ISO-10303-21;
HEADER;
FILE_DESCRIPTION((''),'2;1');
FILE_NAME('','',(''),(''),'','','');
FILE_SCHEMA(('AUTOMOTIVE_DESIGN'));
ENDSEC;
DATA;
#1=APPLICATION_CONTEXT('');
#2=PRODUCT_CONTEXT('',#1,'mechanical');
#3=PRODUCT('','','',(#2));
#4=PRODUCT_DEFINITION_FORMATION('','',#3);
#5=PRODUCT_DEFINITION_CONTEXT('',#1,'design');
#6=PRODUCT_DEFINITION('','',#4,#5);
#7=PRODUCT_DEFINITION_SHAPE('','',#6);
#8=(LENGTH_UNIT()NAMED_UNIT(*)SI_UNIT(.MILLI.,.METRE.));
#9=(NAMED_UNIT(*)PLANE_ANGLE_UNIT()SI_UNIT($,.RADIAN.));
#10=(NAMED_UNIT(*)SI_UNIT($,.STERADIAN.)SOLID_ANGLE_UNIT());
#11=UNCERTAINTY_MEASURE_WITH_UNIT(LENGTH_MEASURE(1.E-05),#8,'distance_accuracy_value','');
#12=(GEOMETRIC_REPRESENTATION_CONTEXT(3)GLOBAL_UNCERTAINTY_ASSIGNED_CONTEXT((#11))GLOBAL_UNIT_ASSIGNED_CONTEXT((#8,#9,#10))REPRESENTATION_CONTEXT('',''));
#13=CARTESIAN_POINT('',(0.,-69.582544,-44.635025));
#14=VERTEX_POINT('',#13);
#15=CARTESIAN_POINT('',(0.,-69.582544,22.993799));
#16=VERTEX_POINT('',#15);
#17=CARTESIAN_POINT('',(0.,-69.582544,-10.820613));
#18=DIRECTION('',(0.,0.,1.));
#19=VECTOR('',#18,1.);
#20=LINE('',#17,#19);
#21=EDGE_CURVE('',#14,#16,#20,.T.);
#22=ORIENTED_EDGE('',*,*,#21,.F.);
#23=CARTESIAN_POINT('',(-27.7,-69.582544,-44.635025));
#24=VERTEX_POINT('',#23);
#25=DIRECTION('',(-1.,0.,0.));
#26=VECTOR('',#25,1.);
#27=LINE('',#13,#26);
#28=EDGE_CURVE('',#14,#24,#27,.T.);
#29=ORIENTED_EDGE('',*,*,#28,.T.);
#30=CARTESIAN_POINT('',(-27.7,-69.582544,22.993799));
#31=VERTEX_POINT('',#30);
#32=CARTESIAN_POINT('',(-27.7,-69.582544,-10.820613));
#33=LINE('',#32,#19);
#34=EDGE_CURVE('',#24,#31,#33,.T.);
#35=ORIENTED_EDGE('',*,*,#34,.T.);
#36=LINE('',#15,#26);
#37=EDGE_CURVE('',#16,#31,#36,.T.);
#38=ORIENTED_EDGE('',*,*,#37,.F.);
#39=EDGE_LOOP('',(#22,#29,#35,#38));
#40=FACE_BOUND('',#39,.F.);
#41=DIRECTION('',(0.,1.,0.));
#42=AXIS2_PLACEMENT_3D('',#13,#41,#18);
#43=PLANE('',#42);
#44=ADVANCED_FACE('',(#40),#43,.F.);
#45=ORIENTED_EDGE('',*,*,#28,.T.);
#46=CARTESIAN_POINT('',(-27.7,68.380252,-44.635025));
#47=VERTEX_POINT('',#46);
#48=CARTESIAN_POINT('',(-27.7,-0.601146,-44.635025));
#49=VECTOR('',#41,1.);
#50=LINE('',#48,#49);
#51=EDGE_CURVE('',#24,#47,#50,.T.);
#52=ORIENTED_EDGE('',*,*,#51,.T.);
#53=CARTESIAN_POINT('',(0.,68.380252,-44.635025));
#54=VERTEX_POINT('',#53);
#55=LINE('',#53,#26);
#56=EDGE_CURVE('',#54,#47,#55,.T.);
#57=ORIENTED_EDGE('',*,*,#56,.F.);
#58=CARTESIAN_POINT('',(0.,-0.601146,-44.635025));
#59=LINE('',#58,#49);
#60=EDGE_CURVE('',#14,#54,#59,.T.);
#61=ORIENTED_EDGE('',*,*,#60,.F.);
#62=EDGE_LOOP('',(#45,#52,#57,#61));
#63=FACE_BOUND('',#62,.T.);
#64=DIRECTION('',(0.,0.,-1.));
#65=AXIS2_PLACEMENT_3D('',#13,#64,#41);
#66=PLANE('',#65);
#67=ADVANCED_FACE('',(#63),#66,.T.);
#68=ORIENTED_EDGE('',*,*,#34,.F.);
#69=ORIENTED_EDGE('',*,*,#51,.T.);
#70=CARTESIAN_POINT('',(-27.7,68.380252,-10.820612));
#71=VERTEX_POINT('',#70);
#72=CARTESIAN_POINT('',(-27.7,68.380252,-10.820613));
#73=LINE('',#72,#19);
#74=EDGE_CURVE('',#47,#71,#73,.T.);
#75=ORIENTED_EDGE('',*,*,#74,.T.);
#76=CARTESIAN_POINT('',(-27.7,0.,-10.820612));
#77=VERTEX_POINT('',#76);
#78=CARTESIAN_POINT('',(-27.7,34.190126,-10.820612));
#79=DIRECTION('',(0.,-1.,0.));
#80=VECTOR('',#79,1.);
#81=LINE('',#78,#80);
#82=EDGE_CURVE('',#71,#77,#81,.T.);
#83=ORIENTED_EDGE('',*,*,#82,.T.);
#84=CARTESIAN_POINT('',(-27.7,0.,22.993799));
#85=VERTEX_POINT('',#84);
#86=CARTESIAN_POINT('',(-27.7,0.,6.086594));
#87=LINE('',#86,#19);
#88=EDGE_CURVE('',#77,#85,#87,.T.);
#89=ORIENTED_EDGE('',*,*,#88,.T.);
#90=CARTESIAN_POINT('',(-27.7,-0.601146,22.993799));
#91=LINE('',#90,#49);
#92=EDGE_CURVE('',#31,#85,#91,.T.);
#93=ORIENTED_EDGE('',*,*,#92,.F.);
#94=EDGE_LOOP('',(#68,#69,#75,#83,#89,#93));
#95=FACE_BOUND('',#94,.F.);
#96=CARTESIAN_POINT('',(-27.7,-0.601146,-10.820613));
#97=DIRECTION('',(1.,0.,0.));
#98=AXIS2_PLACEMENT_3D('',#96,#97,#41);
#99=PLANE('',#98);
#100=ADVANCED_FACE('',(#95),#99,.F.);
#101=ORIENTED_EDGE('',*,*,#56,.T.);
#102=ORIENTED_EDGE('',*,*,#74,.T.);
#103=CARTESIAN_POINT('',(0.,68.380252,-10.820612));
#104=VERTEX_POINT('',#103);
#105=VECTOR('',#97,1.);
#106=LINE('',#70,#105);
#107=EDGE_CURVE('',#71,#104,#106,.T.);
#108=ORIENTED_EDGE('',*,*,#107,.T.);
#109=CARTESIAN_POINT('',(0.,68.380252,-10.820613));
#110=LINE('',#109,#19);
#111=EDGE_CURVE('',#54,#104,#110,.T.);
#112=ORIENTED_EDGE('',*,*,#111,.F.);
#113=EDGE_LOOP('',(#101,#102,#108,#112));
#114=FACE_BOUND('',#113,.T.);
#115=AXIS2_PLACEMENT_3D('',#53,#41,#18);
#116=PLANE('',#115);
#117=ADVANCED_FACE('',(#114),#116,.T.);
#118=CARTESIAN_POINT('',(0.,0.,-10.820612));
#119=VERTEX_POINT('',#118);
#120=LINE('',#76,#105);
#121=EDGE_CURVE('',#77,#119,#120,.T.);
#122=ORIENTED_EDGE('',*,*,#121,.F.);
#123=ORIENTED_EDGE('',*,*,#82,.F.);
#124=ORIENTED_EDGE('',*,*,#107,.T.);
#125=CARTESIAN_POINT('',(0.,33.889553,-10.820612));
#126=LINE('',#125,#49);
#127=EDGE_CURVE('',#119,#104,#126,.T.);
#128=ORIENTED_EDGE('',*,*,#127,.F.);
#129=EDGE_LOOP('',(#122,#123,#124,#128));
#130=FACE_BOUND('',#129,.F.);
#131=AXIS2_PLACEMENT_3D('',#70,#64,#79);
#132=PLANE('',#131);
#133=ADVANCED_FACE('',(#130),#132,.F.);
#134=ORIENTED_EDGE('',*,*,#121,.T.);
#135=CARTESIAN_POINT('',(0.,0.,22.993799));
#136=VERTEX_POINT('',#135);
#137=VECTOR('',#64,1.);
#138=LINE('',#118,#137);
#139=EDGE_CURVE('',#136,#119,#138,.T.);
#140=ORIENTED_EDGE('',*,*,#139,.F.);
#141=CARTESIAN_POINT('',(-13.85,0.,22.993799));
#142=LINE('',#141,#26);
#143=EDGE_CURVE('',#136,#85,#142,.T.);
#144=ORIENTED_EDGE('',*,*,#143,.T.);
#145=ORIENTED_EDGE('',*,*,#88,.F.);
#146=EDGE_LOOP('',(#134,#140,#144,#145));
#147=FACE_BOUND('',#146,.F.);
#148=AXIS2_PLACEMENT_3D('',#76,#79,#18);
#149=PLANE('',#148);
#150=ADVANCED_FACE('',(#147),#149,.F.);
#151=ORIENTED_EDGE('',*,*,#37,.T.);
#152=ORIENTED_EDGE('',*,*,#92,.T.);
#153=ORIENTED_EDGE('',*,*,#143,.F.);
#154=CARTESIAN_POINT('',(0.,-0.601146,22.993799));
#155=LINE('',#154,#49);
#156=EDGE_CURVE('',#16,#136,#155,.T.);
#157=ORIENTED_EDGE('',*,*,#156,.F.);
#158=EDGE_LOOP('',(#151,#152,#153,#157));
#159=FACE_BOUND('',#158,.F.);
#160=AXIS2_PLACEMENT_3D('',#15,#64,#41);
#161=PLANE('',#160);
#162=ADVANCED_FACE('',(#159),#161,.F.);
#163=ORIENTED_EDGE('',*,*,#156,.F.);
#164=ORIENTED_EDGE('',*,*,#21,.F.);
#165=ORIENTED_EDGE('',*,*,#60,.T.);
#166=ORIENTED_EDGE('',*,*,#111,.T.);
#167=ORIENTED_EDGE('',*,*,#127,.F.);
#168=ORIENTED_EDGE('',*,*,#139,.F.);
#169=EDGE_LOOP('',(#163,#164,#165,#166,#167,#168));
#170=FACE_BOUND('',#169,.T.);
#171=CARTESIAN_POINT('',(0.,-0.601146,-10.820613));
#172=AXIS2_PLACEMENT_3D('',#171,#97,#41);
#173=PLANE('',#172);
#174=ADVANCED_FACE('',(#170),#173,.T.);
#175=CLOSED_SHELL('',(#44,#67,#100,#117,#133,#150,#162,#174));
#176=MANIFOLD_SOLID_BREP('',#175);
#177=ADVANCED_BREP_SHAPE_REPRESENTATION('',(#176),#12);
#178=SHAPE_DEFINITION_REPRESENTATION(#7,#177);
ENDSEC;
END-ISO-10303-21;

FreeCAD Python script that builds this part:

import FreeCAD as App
import Part
import Sketcher
from FreeCAD import Vector


def add_polygon(sketch, points):
    """Adds a closed chain of lines whose ends are joined by coincident constraints."""
    first, n = sketch.GeometryCount, len(points)
    for a, b in zip(points, points[1:] + points[:1]):
        sketch.addGeometry(Part.LineSegment(App.Vector(*a, 0), App.Vector(*b, 0)), False)
    for i in range(n):
        sketch.addConstraint(Sketcher.Constraint("Coincident", first + i, 2, first + (i + 1) % n, 1))

doc = App.newDocument("Part")
params = doc.addObject("Spreadsheet::Sheet", "Params")
for row, (alias, value) in enumerate([
    ("pad1_length", "27.7 mm"),
    ("pocket1_length", "36.4 mm"),
], start=1):
    params.set(f"A{row}", alias)
    params.set(f"B{row}", "=" + value)
    params.setAlias(f"B{row}", alias)

body = doc.addObject("PartDesign::Body", "Body")

sketch1 = body.newObject("Sketcher::SketchObject", "Sketch")
sketch1.AttachmentSupport = (doc.getObject("YZ_Plane"), [""])
sketch1.MapMode = "FlatFace"
add_polygon(sketch1, [(-70, 23), (-70, -45), (68, -45), (68, 23)])
sketch1.addConstraint([
    Sketcher.Constraint("Vertical", 0),
    Sketcher.Constraint("Horizontal", 1),
    Sketcher.Constraint("Vertical", 2),
    Sketcher.Constraint("Horizontal", 3),
    Sketcher.Constraint("DistanceY", -1, 1, 2, 2, 22.993799),
    Sketcher.Constraint("DistanceX", 1, 1, 1, 2, 137.962796),
    Sketcher.Constraint("DistanceY", 0, 2, 0, 1, 67.628823),
    Sketcher.Constraint("DistanceX", -1, 1, 1, 2, 68.380252),
])
pad1 = body.newObject("PartDesign::Pad", "Pad")
pad1.Profile = sketch1
pad1.setExpression("Length", "Params.pad1_length")
pad1.Reversed = True

sketch2 = body.newObject("Sketcher::SketchObject", "Sketch001")
sketch2.AttachmentSupport = (doc.getObject("YZ_Plane"), [""])
sketch2.MapMode = "FlatFace"
sketch2.AttachmentOffset = App.Placement(Vector(0, 0, -27.7), App.Rotation())
add_polygon(sketch2, [(68, 23), (68, -11), (0, -11), (0, 23)])
sketch2.addConstraint([
    Sketcher.Constraint("Vertical", 0),
    Sketcher.Constraint("Horizontal", 1),
    Sketcher.Constraint("Vertical", 2),
    Sketcher.Constraint("Horizontal", 3),
    Sketcher.Constraint("PointOnObject", 1, 2, -2),
    Sketcher.Constraint("DistanceX", 1, 2, 1, 1, 68.380252),
    Sketcher.Constraint("DistanceY", 0, 2, 0, 1, 33.814411),
    Sketcher.Constraint("DistanceY", -1, 1, 2, 2, 22.9938),
])
pocket1 = body.newObject("PartDesign::Pocket", "Pocket")
pocket1.Profile = sketch2
pocket1.setExpression("Length", "Params.pocket1_length")
pocket1.Reversed = True

doc.recompute()
